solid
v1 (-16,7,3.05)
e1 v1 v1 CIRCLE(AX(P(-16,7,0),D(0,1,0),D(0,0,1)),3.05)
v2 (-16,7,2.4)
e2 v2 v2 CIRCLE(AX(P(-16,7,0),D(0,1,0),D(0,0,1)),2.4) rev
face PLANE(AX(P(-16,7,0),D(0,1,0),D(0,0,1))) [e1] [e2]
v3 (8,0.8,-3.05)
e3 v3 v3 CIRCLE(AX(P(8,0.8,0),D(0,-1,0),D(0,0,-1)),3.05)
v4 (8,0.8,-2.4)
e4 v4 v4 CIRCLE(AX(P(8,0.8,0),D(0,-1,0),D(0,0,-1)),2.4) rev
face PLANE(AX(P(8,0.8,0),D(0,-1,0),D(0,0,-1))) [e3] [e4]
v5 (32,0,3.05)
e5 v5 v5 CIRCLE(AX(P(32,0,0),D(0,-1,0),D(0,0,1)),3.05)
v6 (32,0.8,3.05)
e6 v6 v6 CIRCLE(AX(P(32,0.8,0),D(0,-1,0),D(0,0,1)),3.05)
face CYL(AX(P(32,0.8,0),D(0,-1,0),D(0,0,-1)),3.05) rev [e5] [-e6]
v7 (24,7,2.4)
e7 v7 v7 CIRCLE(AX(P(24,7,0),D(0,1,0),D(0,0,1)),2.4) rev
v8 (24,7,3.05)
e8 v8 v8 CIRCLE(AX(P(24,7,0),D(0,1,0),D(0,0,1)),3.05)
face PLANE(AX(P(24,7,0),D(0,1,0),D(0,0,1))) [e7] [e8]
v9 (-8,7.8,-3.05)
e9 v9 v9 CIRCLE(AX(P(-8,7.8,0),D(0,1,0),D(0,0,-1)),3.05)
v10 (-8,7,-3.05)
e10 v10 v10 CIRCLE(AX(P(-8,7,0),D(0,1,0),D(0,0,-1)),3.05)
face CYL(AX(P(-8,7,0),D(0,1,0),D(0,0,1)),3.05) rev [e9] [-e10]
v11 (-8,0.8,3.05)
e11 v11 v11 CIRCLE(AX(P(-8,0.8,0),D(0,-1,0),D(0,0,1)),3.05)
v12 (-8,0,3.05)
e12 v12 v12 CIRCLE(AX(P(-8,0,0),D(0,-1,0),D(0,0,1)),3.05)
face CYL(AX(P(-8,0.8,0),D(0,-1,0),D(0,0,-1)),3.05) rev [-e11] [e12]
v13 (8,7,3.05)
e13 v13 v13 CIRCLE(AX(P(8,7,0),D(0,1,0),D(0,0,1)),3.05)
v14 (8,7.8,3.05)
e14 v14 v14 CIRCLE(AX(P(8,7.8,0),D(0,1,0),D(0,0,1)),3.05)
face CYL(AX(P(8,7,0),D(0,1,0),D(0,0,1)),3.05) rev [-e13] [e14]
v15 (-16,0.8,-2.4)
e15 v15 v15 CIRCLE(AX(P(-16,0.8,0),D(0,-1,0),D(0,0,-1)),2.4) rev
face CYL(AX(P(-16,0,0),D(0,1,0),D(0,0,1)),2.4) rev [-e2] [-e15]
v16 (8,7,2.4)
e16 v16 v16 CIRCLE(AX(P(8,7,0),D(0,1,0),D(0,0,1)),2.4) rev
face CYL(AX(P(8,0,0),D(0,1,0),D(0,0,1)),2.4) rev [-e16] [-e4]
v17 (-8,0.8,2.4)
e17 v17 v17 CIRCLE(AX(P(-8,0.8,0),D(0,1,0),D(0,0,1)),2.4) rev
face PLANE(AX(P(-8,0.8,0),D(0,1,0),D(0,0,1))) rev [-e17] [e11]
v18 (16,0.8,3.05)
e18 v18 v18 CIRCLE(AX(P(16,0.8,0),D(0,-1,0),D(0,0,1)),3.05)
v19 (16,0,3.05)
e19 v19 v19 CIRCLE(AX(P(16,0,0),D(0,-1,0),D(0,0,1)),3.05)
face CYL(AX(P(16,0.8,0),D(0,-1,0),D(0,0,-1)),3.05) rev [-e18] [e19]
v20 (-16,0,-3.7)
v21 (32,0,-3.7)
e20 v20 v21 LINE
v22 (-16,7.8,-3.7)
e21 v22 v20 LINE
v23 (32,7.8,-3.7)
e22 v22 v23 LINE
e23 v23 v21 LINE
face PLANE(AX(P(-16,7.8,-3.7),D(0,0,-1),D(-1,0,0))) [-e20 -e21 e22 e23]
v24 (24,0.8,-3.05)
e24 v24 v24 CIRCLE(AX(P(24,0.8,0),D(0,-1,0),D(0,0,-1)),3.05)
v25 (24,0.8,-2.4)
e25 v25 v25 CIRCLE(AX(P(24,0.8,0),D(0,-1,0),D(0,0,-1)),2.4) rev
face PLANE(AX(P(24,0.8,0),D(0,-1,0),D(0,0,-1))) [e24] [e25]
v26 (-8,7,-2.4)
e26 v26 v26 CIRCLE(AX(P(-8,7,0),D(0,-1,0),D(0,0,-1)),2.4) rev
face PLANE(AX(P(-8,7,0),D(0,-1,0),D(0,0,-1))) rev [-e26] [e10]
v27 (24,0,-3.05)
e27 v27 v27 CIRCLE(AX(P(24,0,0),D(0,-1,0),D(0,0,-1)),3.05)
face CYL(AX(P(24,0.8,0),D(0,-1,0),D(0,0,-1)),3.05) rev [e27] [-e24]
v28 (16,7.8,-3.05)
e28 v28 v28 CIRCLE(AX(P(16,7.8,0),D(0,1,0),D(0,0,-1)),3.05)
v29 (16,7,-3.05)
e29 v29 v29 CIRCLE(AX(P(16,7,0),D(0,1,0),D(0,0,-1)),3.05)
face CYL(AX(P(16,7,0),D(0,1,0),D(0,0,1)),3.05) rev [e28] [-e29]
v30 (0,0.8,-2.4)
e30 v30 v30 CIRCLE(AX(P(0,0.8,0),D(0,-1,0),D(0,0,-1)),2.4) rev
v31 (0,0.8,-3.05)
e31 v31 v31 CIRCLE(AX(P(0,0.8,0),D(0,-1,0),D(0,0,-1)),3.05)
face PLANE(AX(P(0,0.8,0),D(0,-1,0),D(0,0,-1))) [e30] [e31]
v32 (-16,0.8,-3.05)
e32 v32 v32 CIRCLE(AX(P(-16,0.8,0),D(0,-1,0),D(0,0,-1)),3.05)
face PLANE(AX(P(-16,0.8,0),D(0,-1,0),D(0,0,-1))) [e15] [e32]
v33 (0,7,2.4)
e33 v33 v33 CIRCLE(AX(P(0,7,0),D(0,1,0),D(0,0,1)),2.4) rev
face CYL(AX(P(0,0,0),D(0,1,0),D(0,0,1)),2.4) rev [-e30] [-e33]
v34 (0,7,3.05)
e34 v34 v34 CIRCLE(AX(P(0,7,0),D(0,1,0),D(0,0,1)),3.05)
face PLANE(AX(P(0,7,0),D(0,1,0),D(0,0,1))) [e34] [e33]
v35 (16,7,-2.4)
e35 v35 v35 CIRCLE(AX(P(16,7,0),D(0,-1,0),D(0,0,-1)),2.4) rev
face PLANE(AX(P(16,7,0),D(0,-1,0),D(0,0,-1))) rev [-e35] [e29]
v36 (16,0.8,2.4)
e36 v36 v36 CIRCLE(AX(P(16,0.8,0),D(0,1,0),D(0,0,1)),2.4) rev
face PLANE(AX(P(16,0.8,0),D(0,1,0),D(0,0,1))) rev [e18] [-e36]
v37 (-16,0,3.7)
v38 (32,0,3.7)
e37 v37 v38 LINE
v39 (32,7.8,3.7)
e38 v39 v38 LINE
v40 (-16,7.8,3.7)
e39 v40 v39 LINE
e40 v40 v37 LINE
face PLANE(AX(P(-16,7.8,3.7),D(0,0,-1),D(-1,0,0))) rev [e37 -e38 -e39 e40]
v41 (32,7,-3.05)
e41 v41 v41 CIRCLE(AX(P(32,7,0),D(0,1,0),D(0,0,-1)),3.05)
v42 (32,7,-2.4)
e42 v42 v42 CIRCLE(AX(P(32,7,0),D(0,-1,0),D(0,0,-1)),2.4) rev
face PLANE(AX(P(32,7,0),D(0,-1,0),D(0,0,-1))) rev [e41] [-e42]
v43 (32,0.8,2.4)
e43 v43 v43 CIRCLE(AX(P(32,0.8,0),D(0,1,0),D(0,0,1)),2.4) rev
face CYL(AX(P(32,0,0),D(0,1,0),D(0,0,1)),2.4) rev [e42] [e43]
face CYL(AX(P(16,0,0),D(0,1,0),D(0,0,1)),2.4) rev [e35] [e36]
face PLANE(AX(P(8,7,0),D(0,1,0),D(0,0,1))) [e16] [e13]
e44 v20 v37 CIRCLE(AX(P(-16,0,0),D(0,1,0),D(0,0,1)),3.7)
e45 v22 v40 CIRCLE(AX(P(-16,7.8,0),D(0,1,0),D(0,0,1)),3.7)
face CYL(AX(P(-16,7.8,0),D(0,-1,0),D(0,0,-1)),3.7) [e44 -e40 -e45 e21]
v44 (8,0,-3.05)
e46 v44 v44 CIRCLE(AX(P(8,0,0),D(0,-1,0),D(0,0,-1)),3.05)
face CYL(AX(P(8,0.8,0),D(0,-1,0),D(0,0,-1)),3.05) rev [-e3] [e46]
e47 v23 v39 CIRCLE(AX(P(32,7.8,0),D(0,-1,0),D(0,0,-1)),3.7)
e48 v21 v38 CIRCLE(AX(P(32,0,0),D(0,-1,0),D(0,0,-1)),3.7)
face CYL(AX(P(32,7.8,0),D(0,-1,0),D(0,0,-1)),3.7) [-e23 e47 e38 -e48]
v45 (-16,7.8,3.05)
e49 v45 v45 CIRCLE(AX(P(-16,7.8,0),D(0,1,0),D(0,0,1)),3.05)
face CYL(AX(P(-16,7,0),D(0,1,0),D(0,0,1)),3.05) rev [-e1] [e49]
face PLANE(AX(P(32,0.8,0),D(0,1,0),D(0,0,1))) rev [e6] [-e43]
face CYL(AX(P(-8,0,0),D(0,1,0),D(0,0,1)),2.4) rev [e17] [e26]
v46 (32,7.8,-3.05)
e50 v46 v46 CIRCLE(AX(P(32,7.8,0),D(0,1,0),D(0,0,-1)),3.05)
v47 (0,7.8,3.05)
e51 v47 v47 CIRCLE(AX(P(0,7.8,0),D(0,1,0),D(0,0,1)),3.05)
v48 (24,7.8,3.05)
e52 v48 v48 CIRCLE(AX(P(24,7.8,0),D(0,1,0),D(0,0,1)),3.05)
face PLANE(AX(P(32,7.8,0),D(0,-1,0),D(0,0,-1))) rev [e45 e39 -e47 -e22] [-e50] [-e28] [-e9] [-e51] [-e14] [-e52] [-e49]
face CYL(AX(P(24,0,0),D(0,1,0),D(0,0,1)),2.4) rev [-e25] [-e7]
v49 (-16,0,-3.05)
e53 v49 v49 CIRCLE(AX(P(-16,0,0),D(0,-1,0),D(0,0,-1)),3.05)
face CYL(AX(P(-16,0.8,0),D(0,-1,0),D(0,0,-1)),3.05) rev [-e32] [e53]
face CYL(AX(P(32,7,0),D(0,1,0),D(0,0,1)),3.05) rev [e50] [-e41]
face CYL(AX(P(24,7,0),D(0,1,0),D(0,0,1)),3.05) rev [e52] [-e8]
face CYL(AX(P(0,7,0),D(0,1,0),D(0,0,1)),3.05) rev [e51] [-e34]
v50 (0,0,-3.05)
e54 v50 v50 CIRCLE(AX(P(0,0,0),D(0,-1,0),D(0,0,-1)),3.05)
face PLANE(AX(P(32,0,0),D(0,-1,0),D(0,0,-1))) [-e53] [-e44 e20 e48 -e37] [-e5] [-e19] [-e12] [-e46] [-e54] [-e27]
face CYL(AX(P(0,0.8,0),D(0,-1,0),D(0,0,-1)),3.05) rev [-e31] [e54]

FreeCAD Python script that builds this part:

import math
import FreeCAD as App
import Part
import Sketcher

V = App.Vector
Q = App.Units.Quantity

doc = App.newDocument("Part")
body = doc.addObject("PartDesign::Body", "Body")

# Sketch on XZ plane
sketch1 = body.newObject("Sketcher::SketchObject", "Sketch")
sketch1.AttachmentSupport = (doc.getObject("XZ_Plane"), [""])
sketch1.MapMode = "FlatFace"
sketch1.addGeometry([
    Part.LineSegment(V(-16, 3.7, 0), V(32, 3.7, 0)),
    Part.ArcOfCircle(Part.Circle(V(32, 0, 0), V(0, 0, 1), 3.7), math.radians(-90), math.radians(90)),
    Part.LineSegment(V(32, -3.7, 0), V(-16, -3.7, 0)),
    Part.ArcOfCircle(Part.Circle(V(-16, 0, 0), V(0, 0, 1), 3.7), math.radians(90), math.radians(270)),
], False)
sketch1.addConstraint([
    Sketcher.Constraint("Tangent", 0, 2, 1, 2),
    Sketcher.Constraint("Tangent", 1, 1, 2, 1),
    Sketcher.Constraint("Tangent", 2, 2, 3, 2),
    Sketcher.Constraint("Tangent", 3, 1, 0, 1),
    Sketcher.Constraint("Horizontal", 0),
    Sketcher.Constraint("Horizontal", 2),
    Sketcher.Constraint("PointOnObject", 1, 3, -1),
    Sketcher.Constraint("Radius", 1, Q("3.7 mm")),
    Sketcher.Constraint("DistanceX", 0, 1, 0, 2, Q("48 mm")),
    Sketcher.Constraint("DistanceX", -1, 1, 1, 3, Q("32 mm")),
])
pad1 = body.newObject("PartDesign::Pad", "Pad")
pad1.Profile = sketch1
pad1.Length = 7.8
pad1.Reversed = True

# Sketch on XZ plane
sketch2 = body.newObject("Sketcher::SketchObject", "Sketch001")
sketch2.AttachmentSupport = (doc.getObject("XZ_Plane"), [""])
sketch2.MapMode = "FlatFace"
sketch2.AttachmentOffset = App.Placement(V(0, 0, -7.8), App.Rotation())
sketch2.addGeometry([
    Part.Circle(V(0, 0, 0), V(0, 0, 1), 2.4),  # 0
    Part.Circle(V(8, 0, 0), V(0, 0, 1), 2.4),  # 1
    Part.Circle(V(16, 0, 0), V(0, 0, 1), 2.4),  # 2
    Part.Circle(V(-16, 0, 0), V(0, 0, 1), 2.4),  # 3
    Part.Circle(V(-8, 0, 0), V(0, 0, 1), 2.4),  # 4
    Part.Circle(V(24, 0, 0), V(0, 0, 1), 2.4),  # 5
    Part.Circle(V(32, 0, 0), V(0, 0, 1), 2.4),  # 6
], False)
sketch2.addConstraint([
    Sketcher.Constraint("Coincident", 0, 3, -1, 1),
    Sketcher.Constraint("Equal", 0, 1),
    Sketcher.Constraint("Equal", 1, 2),
    Sketcher.Constraint("Equal", 2, 3),
    Sketcher.Constraint("Equal", 3, 4),
    Sketcher.Constraint("Equal", 4, 5),
    Sketcher.Constraint("Equal", 5, 6),
    Sketcher.Constraint("Symmetric", 2, 3, 3, 3, -1, 1),
    Sketcher.Constraint("Symmetric", 1, 3, 4, 3, -1, 1),
    Sketcher.Constraint("PointOnObject", 1, 3, -1),
    Sketcher.Constraint("PointOnObject", 2, 3, -1),
    Sketcher.Constraint("PointOnObject", 5, 3, -1),
    Sketcher.Constraint("PointOnObject", 6, 3, -1),
    Sketcher.Constraint("Diameter", 0, Q("4.8 mm")),
    Sketcher.Constraint("DistanceX", -1, 1, 1, 3, Q("8 mm")),
    Sketcher.Constraint("DistanceX", -1, 1, 2, 3, Q("16 mm")),
    Sketcher.Constraint("DistanceX", -1, 1, 5, 3, Q("24 mm")),
    Sketcher.Constraint("DistanceX", -1, 1, 6, 3, Q("32 mm")),
])
pocket1 = body.newObject("PartDesign::Pocket", "Pocket")
pocket1.Profile = sketch2
pocket1.Length = 7.8
pocket1.Reversed = True

# Sketch on XZ plane
sketch3 = body.newObject("Sketcher::SketchObject", "Sketch002")
sketch3.AttachmentSupport = (doc.getObject("XZ_Plane"), [""])
sketch3.MapMode = "FlatFace"
sketch3.AttachmentOffset = App.Placement(V(0, 0, -7.8), App.Rotation())
sketch3.addGeometry([
    Part.Circle(V(0, 0, 0), V(0, 0, 1), 3),  # 0
    Part.Circle(V(8, 0, 0), V(0, 0, 1), 3),  # 1
    Part.Circle(V(16, 0, 0), V(0, 0, 1), 3),  # 2
    Part.Circle(V(-16, 0, 0), V(0, 0, 1), 3),  # 3
    Part.Circle(V(-8, 0, 0), V(0, 0, 1), 3),  # 4
    Part.Circle(V(32, 0, 0), V(0, 0, 1), 3),  # 5
    Part.Circle(V(24, 0, 0), V(0, 0, 1), 3),  # 6
], False)
sketch3.addConstraint([
    Sketcher.Constraint("Coincident", 0, 3, -1, 1),
    Sketcher.Constraint("Equal", 0, 1),
    Sketcher.Constraint("Equal", 1, 2),
    Sketcher.Constraint("Equal", 2, 3),
    Sketcher.Constraint("Equal", 3, 4),
    Sketcher.Constraint("Equal", 4, 5),
    Sketcher.Constraint("Equal", 5, 6),
    Sketcher.Constraint("Symmetric", 2, 3, 3, 3, -1, 1),
    Sketcher.Constraint("Symmetric", 1, 3, 4, 3, -1, 1),
    Sketcher.Constraint("PointOnObject", 1, 3, -1),
    Sketcher.Constraint("PointOnObject", 2, 3, -1),
    Sketcher.Constraint("PointOnObject", 5, 3, -1),
    Sketcher.Constraint("PointOnObject", 6, 3, -1),
    Sketcher.Constraint("Diameter", 0, Q("6.1 mm")),
    Sketcher.Constraint("DistanceX", -1, 1, 1, 3, Q("8 mm")),
    Sketcher.Constraint("DistanceX", -1, 1, 2, 3, Q("16 mm")),
    Sketcher.Constraint("DistanceX", -1, 1, 5, 3, Q("32 mm")),
    Sketcher.Constraint("DistanceX", -1, 1, 6, 3, Q("24 mm")),
])
pocket2 = body.newObject("PartDesign::Pocket", "Pocket001")
pocket2.Profile = sketch3
pocket2.Length = 0.8
pocket2.Reversed = True

# Sketch on XZ plane
sketch4 = body.newObject("Sketcher::SketchObject", "Sketch003")
sketch4.AttachmentSupport = (doc.getObject("XZ_Plane"), [""])
sketch4.MapMode = "FlatFace"
sketch4.addGeometry([
    Part.Circle(V(0, 0, 0), V(0, 0, 1), 3),  # 0
    Part.Circle(V(8, 0, 0), V(0, 0, 1), 3),  # 1
    Part.Circle(V(16, 0, 0), V(0, 0, 1), 3),  # 2
    Part.Circle(V(-16, 0, 0), V(0, 0, 1), 3),  # 3
    Part.Circle(V(-8, 0, 0), V(0, 0, 1), 3),  # 4
    Part.Circle(V(32, 0, 0), V(0, 0, 1), 3),  # 5
    Part.Circle(V(24, 0, 0), V(0, 0, 1), 3),  # 6
], False)
sketch4.addConstraint([
    Sketcher.Constraint("Coincident", 0, 3, -1, 1),
    Sketcher.Constraint("Equal", 0, 1),
    Sketcher.Constraint("Equal", 1, 2),
    Sketcher.Constraint("Equal", 2, 3),
    Sketcher.Constraint("Equal", 3, 4),
    Sketcher.Constraint("Equal", 4, 5),
    Sketcher.Constraint("Equal", 5, 6),
    Sketcher.Constraint("Symmetric", 2, 3, 3, 3, -1, 1),
    Sketcher.Constraint("Symmetric", 1, 3, 4, 3, -1, 1),
    Sketcher.Constraint("PointOnObject", 1, 3, -1),
    Sketcher.Constraint("PointOnObject", 2, 3, -1),
    Sketcher.Constraint("PointOnObject", 5, 3, -1),
    Sketcher.Constraint("PointOnObject", 6, 3, -1),
    Sketcher.Constraint("Diameter", 0, Q("6.1 mm")),
    Sketcher.Constraint("DistanceX", -1, 1, 1, 3, Q("8 mm")),
    Sketcher.Constraint("DistanceX", -1, 1, 2, 3, Q("16 mm")),
    Sketcher.Constraint("DistanceX", -1, 1, 5, 3, Q("32 mm")),
    Sketcher.Constraint("DistanceX", -1, 1, 6, 3, Q("24 mm")),
])
pocket3 = body.newObject("PartDesign::Pocket", "Pocket002")
pocket3.Profile = sketch4
pocket3.Length = 0.8

doc.recompute()
